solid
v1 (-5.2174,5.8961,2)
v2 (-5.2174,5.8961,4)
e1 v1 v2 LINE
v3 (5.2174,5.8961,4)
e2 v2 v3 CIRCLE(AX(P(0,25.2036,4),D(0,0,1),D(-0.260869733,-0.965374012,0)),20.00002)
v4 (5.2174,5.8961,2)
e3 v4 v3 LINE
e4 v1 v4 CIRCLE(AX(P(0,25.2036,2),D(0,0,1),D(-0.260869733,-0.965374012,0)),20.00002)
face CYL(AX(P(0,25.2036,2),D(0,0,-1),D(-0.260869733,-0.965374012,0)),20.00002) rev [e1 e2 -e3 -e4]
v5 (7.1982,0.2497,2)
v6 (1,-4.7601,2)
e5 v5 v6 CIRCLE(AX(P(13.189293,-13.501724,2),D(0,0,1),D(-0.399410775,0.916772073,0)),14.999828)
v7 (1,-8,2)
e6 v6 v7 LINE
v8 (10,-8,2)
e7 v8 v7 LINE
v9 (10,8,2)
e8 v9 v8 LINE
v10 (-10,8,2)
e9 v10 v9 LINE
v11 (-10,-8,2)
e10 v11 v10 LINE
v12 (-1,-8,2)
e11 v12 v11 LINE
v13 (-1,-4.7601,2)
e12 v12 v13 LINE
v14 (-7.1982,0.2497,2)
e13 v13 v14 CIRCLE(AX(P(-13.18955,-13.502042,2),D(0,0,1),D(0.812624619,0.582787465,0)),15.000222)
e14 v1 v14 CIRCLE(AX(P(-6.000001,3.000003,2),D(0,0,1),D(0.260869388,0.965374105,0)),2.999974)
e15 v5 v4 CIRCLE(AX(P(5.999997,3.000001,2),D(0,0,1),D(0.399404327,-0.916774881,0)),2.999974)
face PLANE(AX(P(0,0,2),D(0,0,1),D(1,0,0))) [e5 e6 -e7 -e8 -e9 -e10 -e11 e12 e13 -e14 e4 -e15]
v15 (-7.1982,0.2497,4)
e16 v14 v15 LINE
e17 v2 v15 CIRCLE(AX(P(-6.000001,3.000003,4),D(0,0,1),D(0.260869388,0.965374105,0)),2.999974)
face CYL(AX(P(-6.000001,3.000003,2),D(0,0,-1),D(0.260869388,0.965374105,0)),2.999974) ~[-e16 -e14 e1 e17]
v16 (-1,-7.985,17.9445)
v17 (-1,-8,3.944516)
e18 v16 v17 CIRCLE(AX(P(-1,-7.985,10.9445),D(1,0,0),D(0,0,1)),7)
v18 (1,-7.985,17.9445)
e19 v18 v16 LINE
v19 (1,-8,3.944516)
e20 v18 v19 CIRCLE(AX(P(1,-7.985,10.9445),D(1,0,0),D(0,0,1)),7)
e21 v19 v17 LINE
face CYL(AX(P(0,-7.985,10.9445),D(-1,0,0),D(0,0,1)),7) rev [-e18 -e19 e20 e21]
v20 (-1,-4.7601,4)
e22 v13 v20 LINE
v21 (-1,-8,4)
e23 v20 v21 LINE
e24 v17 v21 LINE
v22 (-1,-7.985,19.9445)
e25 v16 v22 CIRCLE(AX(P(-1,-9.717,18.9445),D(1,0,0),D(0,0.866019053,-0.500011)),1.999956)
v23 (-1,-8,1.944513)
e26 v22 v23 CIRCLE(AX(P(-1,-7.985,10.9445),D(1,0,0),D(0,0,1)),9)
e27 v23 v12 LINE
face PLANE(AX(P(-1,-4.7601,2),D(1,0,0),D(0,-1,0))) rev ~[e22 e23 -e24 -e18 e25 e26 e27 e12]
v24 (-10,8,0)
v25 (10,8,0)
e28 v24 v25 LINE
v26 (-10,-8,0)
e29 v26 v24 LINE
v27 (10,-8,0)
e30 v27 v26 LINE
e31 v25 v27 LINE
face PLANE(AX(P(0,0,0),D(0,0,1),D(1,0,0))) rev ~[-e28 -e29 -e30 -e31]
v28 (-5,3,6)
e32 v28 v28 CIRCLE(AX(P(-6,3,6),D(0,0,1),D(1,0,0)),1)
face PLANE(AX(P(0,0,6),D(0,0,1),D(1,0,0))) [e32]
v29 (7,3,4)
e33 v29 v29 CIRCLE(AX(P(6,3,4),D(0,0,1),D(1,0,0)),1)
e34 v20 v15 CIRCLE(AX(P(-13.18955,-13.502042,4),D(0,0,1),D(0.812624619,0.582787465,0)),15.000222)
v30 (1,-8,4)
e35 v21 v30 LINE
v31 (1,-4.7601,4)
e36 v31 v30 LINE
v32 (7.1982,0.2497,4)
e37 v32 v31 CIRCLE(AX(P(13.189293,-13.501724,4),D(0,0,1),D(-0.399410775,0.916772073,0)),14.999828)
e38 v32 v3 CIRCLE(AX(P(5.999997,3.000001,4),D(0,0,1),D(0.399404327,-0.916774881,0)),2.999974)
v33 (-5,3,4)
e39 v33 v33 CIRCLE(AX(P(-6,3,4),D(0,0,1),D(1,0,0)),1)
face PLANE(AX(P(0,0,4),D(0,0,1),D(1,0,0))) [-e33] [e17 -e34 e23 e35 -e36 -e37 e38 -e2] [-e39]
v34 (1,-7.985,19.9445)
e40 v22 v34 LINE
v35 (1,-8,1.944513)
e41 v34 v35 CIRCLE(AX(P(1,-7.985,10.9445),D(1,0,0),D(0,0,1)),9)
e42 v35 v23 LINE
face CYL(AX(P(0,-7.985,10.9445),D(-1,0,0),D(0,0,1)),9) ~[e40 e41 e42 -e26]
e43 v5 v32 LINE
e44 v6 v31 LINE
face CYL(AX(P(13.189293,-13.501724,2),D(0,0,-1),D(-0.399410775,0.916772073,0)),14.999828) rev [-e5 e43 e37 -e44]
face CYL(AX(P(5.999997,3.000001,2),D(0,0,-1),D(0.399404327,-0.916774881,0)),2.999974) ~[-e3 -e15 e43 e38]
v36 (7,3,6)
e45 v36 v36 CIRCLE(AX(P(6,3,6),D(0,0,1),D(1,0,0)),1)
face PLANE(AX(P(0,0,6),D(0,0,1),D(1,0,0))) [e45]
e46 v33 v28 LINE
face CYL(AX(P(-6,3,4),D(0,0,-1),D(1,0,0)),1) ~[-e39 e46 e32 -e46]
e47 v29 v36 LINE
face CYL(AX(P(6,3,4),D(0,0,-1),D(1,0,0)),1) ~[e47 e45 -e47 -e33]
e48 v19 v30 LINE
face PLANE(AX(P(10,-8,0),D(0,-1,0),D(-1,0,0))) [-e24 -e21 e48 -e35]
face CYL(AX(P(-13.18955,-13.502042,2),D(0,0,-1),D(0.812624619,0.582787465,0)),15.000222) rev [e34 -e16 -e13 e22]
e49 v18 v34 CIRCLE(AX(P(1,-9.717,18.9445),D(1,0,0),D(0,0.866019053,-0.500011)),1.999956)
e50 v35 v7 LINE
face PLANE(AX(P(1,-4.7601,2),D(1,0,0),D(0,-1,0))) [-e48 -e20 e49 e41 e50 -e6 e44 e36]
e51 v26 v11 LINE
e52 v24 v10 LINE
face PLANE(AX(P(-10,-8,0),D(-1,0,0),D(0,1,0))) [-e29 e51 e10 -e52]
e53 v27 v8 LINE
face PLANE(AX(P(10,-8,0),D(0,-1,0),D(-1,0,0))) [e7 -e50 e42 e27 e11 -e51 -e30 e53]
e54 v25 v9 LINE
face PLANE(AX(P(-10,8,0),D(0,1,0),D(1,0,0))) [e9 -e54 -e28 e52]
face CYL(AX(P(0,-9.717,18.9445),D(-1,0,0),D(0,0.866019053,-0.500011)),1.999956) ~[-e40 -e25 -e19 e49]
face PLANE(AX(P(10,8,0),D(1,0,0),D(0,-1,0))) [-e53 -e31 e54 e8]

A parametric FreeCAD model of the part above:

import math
import FreeCAD as App
import Part
import Sketcher
from FreeCAD import Vector

doc = App.newDocument("Part")
body = doc.addObject("PartDesign::Body", "Body")

sketch1 = doc.addObject("Sketcher::SketchObject", "Sketch")
body.addObject(sketch1)
sketch1.AttachmentSupport = (doc.XY_Plane, [""])
sketch1.MapMode = "FlatFace"
sketch1.addGeometry(Part.LineSegment(Vector(10, 8, 0), Vector(-10, 8, 0)), False)
sketch1.addGeometry(Part.LineSegment(Vector(-10, 8, 0), Vector(-10, -8, 0)), False)
sketch1.addGeometry(Part.LineSegment(Vector(-10, -8, 0), Vector(10, -8, 0)), False)
sketch1.addGeometry(Part.LineSegment(Vector(10, -8, 0), Vector(10, 8, 0)), False)
sketch1.addConstraint(Sketcher.Constraint("Coincident", 0, 2, 1, 1))
sketch1.addConstraint(Sketcher.Constraint("Coincident", 1, 2, 2, 1))
sketch1.addConstraint(Sketcher.Constraint("Coincident", 2, 2, 3, 1))
sketch1.addConstraint(Sketcher.Constraint("Coincident", 3, 2, 0, 1))
sketch1.addConstraint(Sketcher.Constraint("Horizontal", 0))
sketch1.addConstraint(Sketcher.Constraint("Vertical", 1))
sketch1.addConstraint(Sketcher.Constraint("Horizontal", 2))
sketch1.addConstraint(Sketcher.Constraint("Vertical", 3))
sketch1.addConstraint(Sketcher.Constraint("Symmetric", 0, 2, 2, 2, -1, 1))
sketch1.addConstraint(Sketcher.Constraint("DistanceX", 0, 2, 0, 1, 20.0))
sketch1.addConstraint(Sketcher.Constraint("DistanceY", 1, 2, 1, 1, 16.0))
pad1 = doc.addObject("PartDesign::Pad", "Pad")
body.addObject(pad1)
pad1.Profile = sketch1
pad1.Length = 2

sketch2 = doc.addObject("Sketcher::SketchObject", "Sketch001")
body.addObject(sketch2)
sketch2.AttachmentSupport = (doc.XY_Plane, [""])
sketch2.MapMode = "FlatFace"
sketch2.AttachmentOffset = App.Placement(Vector(0, 0, 2), App.Rotation())
sketch2.addGeometry(Part.LineSegment(Vector(-1, -4.8, 0), Vector(-1, -8, 0)), False)
sketch2.addGeometry(Part.LineSegment(Vector(-1, -8, 0), Vector(1, -8, 0)), False)
sketch2.addGeometry(Part.LineSegment(Vector(1, -8, 0), Vector(1, -4.8, 0)), False)
sketch2.addGeometry(Part.ArcOfCircle(Part.Circle(Vector(13.2, -13.5, 0), Vector(0, 0, 1), 15), math.radians(114), math.radians(144)), False)
sketch2.addGeometry(Part.ArcOfCircle(Part.Circle(Vector(6, 3, 0), Vector(0, 0, 1), 3), math.radians(-66), math.radians(105)), False)
sketch2.addGeometry(Part.ArcOfCircle(Part.Circle(Vector(0, 25.2, 0), Vector(0, 0, 1), 20), math.radians(-105), math.radians(-75)), False)
sketch2.addGeometry(Part.ArcOfCircle(Part.Circle(Vector(-6, 3, 0), Vector(0, 0, 1), 3), math.radians(75), math.radians(246)), False)
sketch2.addGeometry(Part.ArcOfCircle(Part.Circle(Vector(-13.2, -13.5, 0), Vector(0, 0, 1), 15), math.radians(36), math.radians(66)), False)
sketch2.addConstraint(Sketcher.Constraint("Coincident", 0, 2, 1, 1))
sketch2.addConstraint(Sketcher.Constraint("Coincident", 1, 2, 2, 1))
sketch2.addConstraint(Sketcher.Constraint("Coincident", 2, 2, 3, 2))
sketch2.addConstraint(Sketcher.Constraint("Tangent", 3, 1, 4, 1))
sketch2.addConstraint(Sketcher.Constraint("Tangent", 4, 2, 5, 2))
sketch2.addConstraint(Sketcher.Constraint("Tangent", 5, 1, 6, 1))
sketch2.addConstraint(Sketcher.Constraint("Tangent", 6, 2, 7, 2))
sketch2.addConstraint(Sketcher.Constraint("Coincident", 7, 1, 0, 1))
sketch2.addConstraint(Sketcher.Constraint("Vertical", 0))
sketch2.addConstraint(Sketcher.Constraint("Horizontal", 1))
sketch2.addConstraint(Sketcher.Constraint("Vertical", 2))
sketch2.addConstraint(Sketcher.Constraint("Equal", 4, 6))
sketch2.addConstraint(Sketcher.Constraint("Equal", 3, 7))
sketch2.addConstraint(Sketcher.Constraint("Symmetric", 4, 3, 6, 3, -2))
sketch2.addConstraint(Sketcher.Constraint("Symmetric", 2, 2, 7, 1, -2))
sketch2.addConstraint(Sketcher.Constraint("Radius", 3, 15.0))
sketch2.addConstraint(Sketcher.Constraint("DistanceX", 0, 2, -1, 1, 1.0))
sketch2.addConstraint(Sketcher.Constraint("Radius", 4, 3.0))
sketch2.addConstraint(Sketcher.Constraint("Radius", 5, 20.0))
sketch2.addConstraint(Sketcher.Constraint("DistanceX", -1, 1, 4, 3, 6.0))
sketch2.addConstraint(Sketcher.Constraint("DistanceY", -1, 1, 4, 3, 3.0))
sketch2.addConstraint(Sketcher.Constraint("DistanceY", 0, 2, -1, 1, 8.0))
sketch2.addConstraint(Sketcher.Constraint("DistanceY", 0, 2, 0, 1, 3.24))
pad2 = doc.addObject("PartDesign::Pad", "Pad001")
body.addObject(pad2)
pad2.Profile = sketch2
pad2.Length = 2

sketch3 = doc.addObject("Sketcher::SketchObject", "Sketch002")
body.addObject(sketch3)
sketch3.AttachmentSupport = (doc.XY_Plane, [""])
sketch3.MapMode = "FlatFace"
sketch3.AttachmentOffset = App.Placement(Vector(0, 0, 4), App.Rotation())
sketch3.addGeometry(Part.Circle(Vector(-6, 3, 0), Vector(0, 0, 1), 1), False)
sketch3.addGeometry(Part.Circle(Vector(6, 3, 0), Vector(0, 0, 1), 1), False)
sketch3.addConstraint(Sketcher.Constraint("Equal", 0, 1))
sketch3.addConstraint(Sketcher.Constraint("Symmetric", 0, 3, 1, 3, -2))
sketch3.addConstraint(Sketcher.Constraint("Diameter", 0, 2.0))
sketch3.addConstraint(Sketcher.Constraint("DistanceX", 0, 3, -1, 1, 6.0))
sketch3.addConstraint(Sketcher.Constraint("DistanceY", -1, 1, 0, 3, 3.0))
pad3 = doc.addObject("PartDesign::Pad", "Pad002")
body.addObject(pad3)
pad3.Profile = sketch3
pad3.Length = 2

sketch4 = doc.addObject("Sketcher::SketchObject", "Sketch003")
body.addObject(sketch4)
sketch4.AttachmentSupport = (doc.YZ_Plane, [""])
sketch4.MapMode = "FlatFace"
sketch4.addGeometry(Part.ArcOfCircle(Part.Circle(Vector(-9.7, 18.9, 0), Vector(0, 0, 1), 2), math.radians(-30), math.radians(30)), False)
sketch4.addGeometry(Part.ArcOfCircle(Part.Circle(Vector(-8, 10.9, 0), Vector(0, 0, 1), 9), math.radians(90), math.radians(270)), False)
sketch4.addGeometry(Part.LineSegment(Vector(-8, 1.9, 0), Vector(-8, 3.9, 0)), False)
sketch4.addGeometry(Part.ArcOfCircle(Part.Circle(Vector(-8, 10.9, 0), Vector(0, 0, 1), 7), math.radians(90), math.radians(270)), False)
sketch4.addConstraint(Sketcher.Constraint("Coincident", 0, 2, 1, 1))
sketch4.addConstraint(Sketcher.Constraint("Coincident", 1, 2, 2, 1))
sketch4.addConstraint(Sketcher.Constraint("Coincident", 2, 2, 3, 2))
sketch4.addConstraint(Sketcher.Constraint("Coincident", 3, 1, 0, 1))
sketch4.addConstraint(Sketcher.Constraint("Vertical", 2))
sketch4.addConstraint(Sketcher.Constraint("Coincident", 3, 3, 1, 3))
sketch4.addConstraint(Sketcher.Constraint("Vertical", 3, 3, 0, 2))
sketch4.addConstraint(Sketcher.Constraint("Vertical", 0, 2, 1, 2))
sketch4.addConstraint(Sketcher.Constraint("Vertical", 2, 2, 3, 1))
sketch4.addConstraint(Sketcher.Constraint("Radius", 0, 2.0))
sketch4.addConstraint(Sketcher.Constraint("DistanceY", 2, 1, 2, 2, 2.0))
sketch4.addConstraint(Sketcher.Constraint("Radius", 1, 9.0))
sketch4.addConstraint(Sketcher.Constraint("DistanceX", 0, 3, -1, 1, 9.717))
sketch4.addConstraint(Sketcher.Constraint("DistanceY", -1, 1, 0, 3, 18.9445))
pad4 = doc.addObject("PartDesign::Pad", "Pad003")
body.addObject(pad4)
pad4.Profile = sketch4
pad4.Length = 2
pad4.Midplane = True

doc.recompute()
